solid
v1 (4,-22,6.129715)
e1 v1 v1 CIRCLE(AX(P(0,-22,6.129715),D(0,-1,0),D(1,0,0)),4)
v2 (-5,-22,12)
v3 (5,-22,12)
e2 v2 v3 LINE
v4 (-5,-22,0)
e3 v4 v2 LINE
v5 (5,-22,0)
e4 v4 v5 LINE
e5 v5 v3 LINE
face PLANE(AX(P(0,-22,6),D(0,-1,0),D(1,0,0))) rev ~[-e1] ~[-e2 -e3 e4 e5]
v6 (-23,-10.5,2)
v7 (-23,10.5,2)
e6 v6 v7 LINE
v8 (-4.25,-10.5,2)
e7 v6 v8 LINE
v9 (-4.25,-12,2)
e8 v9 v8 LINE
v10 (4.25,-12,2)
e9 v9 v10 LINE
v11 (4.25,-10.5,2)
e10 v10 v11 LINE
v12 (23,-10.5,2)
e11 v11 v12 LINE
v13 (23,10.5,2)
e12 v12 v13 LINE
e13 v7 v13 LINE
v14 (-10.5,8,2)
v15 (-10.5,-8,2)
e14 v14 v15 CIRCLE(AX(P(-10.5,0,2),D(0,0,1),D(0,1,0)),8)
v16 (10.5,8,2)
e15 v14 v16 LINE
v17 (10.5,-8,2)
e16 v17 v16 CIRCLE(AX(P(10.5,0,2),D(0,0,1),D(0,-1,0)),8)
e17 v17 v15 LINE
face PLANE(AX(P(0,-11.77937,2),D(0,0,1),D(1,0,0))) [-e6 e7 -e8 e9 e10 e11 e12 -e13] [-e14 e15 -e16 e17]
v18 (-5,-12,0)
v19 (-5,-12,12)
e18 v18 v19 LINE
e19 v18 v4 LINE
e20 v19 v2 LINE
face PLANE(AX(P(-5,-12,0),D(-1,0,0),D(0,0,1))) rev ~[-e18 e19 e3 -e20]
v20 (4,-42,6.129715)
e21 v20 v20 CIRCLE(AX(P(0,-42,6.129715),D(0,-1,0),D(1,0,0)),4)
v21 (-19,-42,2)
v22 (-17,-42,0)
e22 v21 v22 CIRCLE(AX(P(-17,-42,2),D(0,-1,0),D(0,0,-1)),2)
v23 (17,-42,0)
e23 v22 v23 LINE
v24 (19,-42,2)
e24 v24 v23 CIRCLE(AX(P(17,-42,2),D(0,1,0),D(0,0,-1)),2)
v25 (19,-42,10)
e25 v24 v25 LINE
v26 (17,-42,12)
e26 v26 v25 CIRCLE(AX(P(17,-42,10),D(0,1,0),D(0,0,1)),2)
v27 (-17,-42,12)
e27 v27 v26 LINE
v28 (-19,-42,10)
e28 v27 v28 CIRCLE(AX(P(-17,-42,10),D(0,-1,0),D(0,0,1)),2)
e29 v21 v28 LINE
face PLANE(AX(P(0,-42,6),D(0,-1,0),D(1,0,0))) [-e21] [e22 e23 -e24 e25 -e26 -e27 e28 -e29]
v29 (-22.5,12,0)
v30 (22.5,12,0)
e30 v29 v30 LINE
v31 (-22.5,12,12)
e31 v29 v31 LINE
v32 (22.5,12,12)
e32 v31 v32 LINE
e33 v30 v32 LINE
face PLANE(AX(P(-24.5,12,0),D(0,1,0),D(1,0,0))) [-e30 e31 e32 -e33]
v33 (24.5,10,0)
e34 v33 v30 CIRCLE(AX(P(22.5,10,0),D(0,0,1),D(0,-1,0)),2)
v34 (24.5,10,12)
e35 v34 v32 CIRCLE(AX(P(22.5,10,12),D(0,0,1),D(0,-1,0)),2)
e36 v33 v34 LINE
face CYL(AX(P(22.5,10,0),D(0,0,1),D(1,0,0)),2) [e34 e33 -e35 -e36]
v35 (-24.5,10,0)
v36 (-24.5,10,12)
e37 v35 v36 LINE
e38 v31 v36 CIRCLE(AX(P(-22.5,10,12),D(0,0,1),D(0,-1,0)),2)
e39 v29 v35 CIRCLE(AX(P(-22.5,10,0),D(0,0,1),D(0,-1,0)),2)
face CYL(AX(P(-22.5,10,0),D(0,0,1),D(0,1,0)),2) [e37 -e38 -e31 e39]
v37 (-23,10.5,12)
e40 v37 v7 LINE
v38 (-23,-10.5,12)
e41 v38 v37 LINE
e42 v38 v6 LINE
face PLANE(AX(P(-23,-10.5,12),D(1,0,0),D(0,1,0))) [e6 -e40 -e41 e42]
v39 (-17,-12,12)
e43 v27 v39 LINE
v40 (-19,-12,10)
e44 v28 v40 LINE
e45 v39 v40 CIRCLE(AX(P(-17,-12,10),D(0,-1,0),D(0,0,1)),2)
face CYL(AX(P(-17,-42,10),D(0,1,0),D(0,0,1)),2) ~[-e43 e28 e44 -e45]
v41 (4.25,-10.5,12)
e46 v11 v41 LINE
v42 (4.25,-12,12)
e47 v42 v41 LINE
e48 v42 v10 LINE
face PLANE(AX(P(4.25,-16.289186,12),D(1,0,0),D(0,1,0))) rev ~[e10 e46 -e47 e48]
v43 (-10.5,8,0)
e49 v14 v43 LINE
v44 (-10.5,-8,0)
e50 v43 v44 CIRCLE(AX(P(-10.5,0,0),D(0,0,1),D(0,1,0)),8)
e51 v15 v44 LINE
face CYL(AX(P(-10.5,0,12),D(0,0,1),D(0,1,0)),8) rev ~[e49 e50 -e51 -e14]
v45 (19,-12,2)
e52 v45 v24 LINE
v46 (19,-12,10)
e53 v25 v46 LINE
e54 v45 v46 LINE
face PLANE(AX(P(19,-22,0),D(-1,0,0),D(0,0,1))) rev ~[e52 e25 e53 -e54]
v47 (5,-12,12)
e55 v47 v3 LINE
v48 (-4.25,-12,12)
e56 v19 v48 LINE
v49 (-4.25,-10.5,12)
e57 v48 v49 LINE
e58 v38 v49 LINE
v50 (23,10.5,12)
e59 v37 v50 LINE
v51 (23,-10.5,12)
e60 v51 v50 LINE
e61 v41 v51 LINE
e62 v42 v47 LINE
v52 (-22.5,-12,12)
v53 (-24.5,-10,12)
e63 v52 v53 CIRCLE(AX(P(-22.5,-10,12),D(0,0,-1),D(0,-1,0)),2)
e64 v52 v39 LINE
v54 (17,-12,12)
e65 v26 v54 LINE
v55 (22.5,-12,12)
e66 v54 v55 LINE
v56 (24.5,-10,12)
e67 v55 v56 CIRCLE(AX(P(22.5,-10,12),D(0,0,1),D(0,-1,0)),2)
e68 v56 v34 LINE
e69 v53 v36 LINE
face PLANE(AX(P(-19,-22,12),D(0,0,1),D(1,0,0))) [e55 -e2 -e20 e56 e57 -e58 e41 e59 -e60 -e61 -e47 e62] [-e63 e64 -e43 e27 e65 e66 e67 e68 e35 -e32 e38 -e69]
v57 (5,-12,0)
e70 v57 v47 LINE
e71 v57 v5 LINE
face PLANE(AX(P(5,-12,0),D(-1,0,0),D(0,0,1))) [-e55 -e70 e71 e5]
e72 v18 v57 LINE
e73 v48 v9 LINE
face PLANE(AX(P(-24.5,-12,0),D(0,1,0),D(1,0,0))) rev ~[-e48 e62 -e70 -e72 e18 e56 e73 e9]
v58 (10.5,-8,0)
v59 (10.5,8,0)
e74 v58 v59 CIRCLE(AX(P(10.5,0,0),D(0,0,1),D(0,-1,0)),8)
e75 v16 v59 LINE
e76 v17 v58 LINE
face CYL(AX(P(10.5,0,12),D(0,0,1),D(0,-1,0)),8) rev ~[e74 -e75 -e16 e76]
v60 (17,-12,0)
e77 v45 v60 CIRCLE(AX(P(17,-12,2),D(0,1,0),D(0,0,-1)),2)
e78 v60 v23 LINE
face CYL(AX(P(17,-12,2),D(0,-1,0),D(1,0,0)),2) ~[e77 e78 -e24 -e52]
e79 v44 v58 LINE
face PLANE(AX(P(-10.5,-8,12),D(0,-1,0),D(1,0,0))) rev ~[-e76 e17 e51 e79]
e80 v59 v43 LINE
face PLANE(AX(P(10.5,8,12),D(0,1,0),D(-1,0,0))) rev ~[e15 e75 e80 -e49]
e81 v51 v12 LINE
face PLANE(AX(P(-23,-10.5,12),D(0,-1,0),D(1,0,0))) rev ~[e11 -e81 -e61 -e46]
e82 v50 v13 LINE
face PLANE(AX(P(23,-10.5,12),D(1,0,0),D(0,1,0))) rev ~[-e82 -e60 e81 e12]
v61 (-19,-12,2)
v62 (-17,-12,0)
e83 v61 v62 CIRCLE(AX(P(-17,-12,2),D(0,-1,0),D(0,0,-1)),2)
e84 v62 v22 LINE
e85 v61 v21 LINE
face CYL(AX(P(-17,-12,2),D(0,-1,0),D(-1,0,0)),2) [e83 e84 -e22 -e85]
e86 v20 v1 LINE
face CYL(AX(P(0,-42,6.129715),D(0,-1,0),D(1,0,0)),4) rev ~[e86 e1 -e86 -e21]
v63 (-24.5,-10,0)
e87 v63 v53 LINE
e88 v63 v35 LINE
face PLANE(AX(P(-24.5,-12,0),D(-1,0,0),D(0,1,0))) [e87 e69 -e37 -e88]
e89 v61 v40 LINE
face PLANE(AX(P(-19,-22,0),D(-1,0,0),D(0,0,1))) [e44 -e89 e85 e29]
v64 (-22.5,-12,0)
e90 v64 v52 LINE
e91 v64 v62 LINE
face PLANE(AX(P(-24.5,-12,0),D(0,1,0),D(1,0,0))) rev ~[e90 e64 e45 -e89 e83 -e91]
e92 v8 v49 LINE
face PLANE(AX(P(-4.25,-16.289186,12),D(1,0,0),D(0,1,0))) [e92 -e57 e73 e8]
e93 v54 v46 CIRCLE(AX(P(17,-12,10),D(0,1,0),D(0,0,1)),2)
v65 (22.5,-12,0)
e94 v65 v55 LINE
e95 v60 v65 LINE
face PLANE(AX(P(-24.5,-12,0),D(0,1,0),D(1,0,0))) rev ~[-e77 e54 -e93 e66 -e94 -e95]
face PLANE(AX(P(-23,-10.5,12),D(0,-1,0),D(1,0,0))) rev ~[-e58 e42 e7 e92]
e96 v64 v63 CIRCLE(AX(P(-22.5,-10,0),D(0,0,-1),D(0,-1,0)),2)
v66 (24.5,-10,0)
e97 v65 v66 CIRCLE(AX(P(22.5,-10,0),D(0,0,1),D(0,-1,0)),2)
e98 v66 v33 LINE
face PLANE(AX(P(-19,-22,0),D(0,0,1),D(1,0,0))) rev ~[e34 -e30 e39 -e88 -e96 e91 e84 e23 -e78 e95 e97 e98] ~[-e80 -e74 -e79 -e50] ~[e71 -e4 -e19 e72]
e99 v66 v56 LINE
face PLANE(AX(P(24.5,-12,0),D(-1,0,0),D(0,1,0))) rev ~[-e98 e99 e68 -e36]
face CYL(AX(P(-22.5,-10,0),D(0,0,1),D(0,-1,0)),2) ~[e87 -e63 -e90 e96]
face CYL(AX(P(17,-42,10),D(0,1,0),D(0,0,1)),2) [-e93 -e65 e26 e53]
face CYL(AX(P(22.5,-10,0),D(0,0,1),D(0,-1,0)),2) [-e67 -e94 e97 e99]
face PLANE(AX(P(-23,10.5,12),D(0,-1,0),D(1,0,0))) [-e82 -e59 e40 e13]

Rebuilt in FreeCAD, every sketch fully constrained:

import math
import FreeCAD as App
import Part
import Sketcher
Q = App.Units.Quantity


def edges_at(feature, points):
    """Names of the edges that pass closest to the given points."""
    edges = feature.Shape.Edges
    near = lambda p: min(range(len(edges)), key=lambda i: edges[i].distToShape(Part.Vertex(*p))[0])
    return sorted({f"Edge{near(p) + 1}" for p in points})


def add_polygon(sketch, points):
    """Adds a closed chain of lines whose ends are joined by coincident constraints."""
    first, n = sketch.GeometryCount, len(points)
    for a, b in zip(points, points[1:] + points[:1]):
        sketch.addGeometry(Part.LineSegment(App.Vector(*a, 0), App.Vector(*b, 0)), False)
    for i in range(n):
        sketch.addConstraint(Sketcher.Constraint("Coincident", first + i, 2, first + (i + 1) % n, 1))

doc = App.newDocument("Part")
body = doc.addObject("PartDesign::Body", "Body")

# Sketch on XY plane
sketch1 = body.newObject("Sketcher::SketchObject", "Sketch")
sketch1.AttachmentSupport = (doc.getObject("XY_Plane"), [""])
sketch1.MapMode = "FlatFace"
add_polygon(sketch1, [(-24, 12), (-24, -12), (24, -12), (24, 12)])  # lines 0-3
sketch1.addConstraint(Sketcher.Constraint("Vertical", 0))
sketch1.addConstraint(Sketcher.Constraint("Horizontal", 1))
sketch1.addConstraint(Sketcher.Constraint("Vertical", 2))
sketch1.addConstraint(Sketcher.Constraint("Horizontal", 3))
sketch1.addConstraint(Sketcher.Constraint("Symmetric", 0, 2, 2, 2, -1, 1))
sketch1.addConstraint(Sketcher.Constraint("DistanceX", 1, 1, 1, 2, Q("49 mm")))
sketch1.addConstraint(Sketcher.Constraint("DistanceY", 0, 2, 0, 1, Q("24 mm")))
pad1 = body.newObject("PartDesign::Pad", "Pad")
pad1.Profile = sketch1
pad1.Length = 12

# Sketch on XY plane
sketch2 = body.newObject("Sketcher::SketchObject", "Sketch001")
sketch2.AttachmentSupport = (doc.getObject("XY_Plane"), [""])
sketch2.MapMode = "FlatFace"
sketch2.AttachmentOffset = App.Placement(App.Vector(0, 0, 12), App.Rotation())
sketch2.addGeometry(Part.ArcOfCircle(Part.Circle(App.Vector(-10, 0, 0), App.Vector(0, 0, 1), 8), math.radians(90), math.radians(270)), False)
sketch2.addGeometry(Part.LineSegment(App.Vector(-10, -8, 0), App.Vector(10, -8, 0)), False)
sketch2.addGeometry(Part.ArcOfCircle(Part.Circle(App.Vector(10, 0, 0), App.Vector(0, 0, 1), 8), math.radians(-90), math.radians(90)), False)
sketch2.addGeometry(Part.LineSegment(App.Vector(10, 8, 0), App.Vector(-10, 8, 0)), False)
sketch2.addConstraint(Sketcher.Constraint("Tangent", 0, 2, 1, 1))
sketch2.addConstraint(Sketcher.Constraint("Tangent", 1, 2, 2, 1))
sketch2.addConstraint(Sketcher.Constraint("Tangent", 2, 2, 3, 1))
sketch2.addConstraint(Sketcher.Constraint("Tangent", 3, 2, 0, 1))
sketch2.addConstraint(Sketcher.Constraint("Horizontal", 1))
sketch2.addConstraint(Sketcher.Constraint("Horizontal", 3))
sketch2.addConstraint(Sketcher.Constraint("Symmetric", 0, 3, 2, 3, -1, 1))
sketch2.addConstraint(Sketcher.Constraint("Radius", 0, Q("8 mm")))
sketch2.addConstraint(Sketcher.Constraint("DistanceX", 1, 1, 1, 2, Q("21 mm")))
pocket1 = body.newObject("PartDesign::Pocket", "Pocket")
pocket1.Profile = sketch2
pocket1.Type = "ThroughAll"

# Sketch on XY plane
sketch3 = body.newObject("Sketcher::SketchObject", "Sketch002")
sketch3.AttachmentSupport = (doc.getObject("XY_Plane"), [""])
sketch3.MapMode = "FlatFace"
sketch3.AttachmentOffset = App.Placement(App.Vector(0, 0, 12), App.Rotation())
add_polygon(sketch3, [(-23, 10), (-23, -10), (23, -10), (23, 10)])  # lines 0-3
sketch3.addConstraint(Sketcher.Constraint("Vertical", 0))
sketch3.addConstraint(Sketcher.Constraint("Horizontal", 1))
sketch3.addConstraint(Sketcher.Constraint("Vertical", 2))
sketch3.addConstraint(Sketcher.Constraint("Horizontal", 3))
sketch3.addConstraint(Sketcher.Constraint("Symmetric", 0, 2, 2, 2, -1, 1))
sketch3.addConstraint(Sketcher.Constraint("DistanceX", 1, 1, 1, 2, Q("46 mm")))
sketch3.addConstraint(Sketcher.Constraint("DistanceY", 0, 2, 0, 1, Q("21 mm")))
pocket2 = body.newObject("PartDesign::Pocket", "Pocket001")
pocket2.Profile = sketch3
pocket2.Length = 10

# Sketch on XY plane
sketch4 = body.newObject("Sketcher::SketchObject", "Sketch003")
sketch4.AttachmentSupport = (doc.getObject("XY_Plane"), [""])
sketch4.MapMode = "FlatFace"
sketch4.AttachmentOffset = App.Placement(App.Vector(0, 0, 12), App.Rotation())
add_polygon(sketch4, [(-4, -7), (-4, -16), (4, -16), (4, -7)])  # lines 0-3
sketch4.addConstraint(Sketcher.Constraint("Vertical", 0))
sketch4.addConstraint(Sketcher.Constraint("Horizontal", 1))
sketch4.addConstraint(Sketcher.Constraint("Vertical", 2))
sketch4.addConstraint(Sketcher.Constraint("Horizontal", 3))
sketch4.addConstraint(Sketcher.Constraint("DistanceX", 1, 1, 1, 2, Q("8.5 mm")))
sketch4.addConstraint(Sketcher.Constraint("DistanceX", 0, 2, -1, 1, Q("4.25 mm")))
sketch4.addConstraint(Sketcher.Constraint("DistanceY", 0, 2, 0, 1, Q("9.019632 mm")))
sketch4.addConstraint(Sketcher.Constraint("DistanceY", 0, 2, -1, 1, Q("16.289186 mm")))
pocket3 = body.newObject("PartDesign::Pocket", "Pocket002")
pocket3.Profile = sketch4
pocket3.Length = 10

# Sketch on XZ plane
sketch5 = body.newObject("Sketcher::SketchObject", "Sketch004")
sketch5.AttachmentSupport = (doc.getObject("XZ_Plane"), [""])
sketch5.MapMode = "FlatFace"
sketch5.AttachmentOffset = App.Placement(App.Vector(0, 0, 12), App.Rotation())
add_polygon(sketch5, [(-19, 12), (-19, 0), (-5, 0), (-5, 12)])  # lines 0-3
add_polygon(sketch5, [(5, 12), (5, 0), (19, 0), (19, 12)])  # lines 4-7
sketch5.addConstraint(Sketcher.Constraint("Vertical", 0))
sketch5.addConstraint(Sketcher.Constraint("Horizontal", 1))
sketch5.addConstraint(Sketcher.Constraint("Vertical", 2))
sketch5.addConstraint(Sketcher.Constraint("Horizontal", 3))
sketch5.addConstraint(Sketcher.Constraint("Vertical", 4))
sketch5.addConstraint(Sketcher.Constraint("Horizontal", 5))
sketch5.addConstraint(Sketcher.Constraint("Vertical", 6))
sketch5.addConstraint(Sketcher.Constraint("Horizontal", 7))
sketch5.addConstraint(Sketcher.Constraint("Symmetric", 1, 2, 4, 2, -1, 1))
sketch5.addConstraint(Sketcher.Constraint("Symmetric", 0, 2, 5, 2, -2))
sketch5.addConstraint(Sketcher.Constraint("Horizontal", 3, 2, 6, 2))
sketch5.addConstraint(Sketcher.Constraint("DistanceX", 1, 1, 1, 2, Q("14 mm")))
sketch5.addConstraint(Sketcher.Constraint("DistanceY", 0, 2, 0, 1, Q("12 mm")))
sketch5.addConstraint(Sketcher.Constraint("DistanceX", 0, 2, -1, 1, Q("19 mm")))
pad2 = body.newObject("PartDesign::Pad", "Pad001")
pad2.Profile = sketch5
pad2.Length = 10

# Sketch on XZ plane
sketch6 = body.newObject("Sketcher::SketchObject", "Sketch005")
sketch6.AttachmentSupport = (doc.getObject("XZ_Plane"), [""])
sketch6.MapMode = "FlatFace"
sketch6.AttachmentOffset = App.Placement(App.Vector(0, 0, 22), App.Rotation())
add_polygon(sketch6, [(-19, 12), (-19, 0), (19, 0), (19, 12)])  # lines 0-3
sketch6.addConstraint(Sketcher.Constraint("Vertical", 0))
sketch6.addConstraint(Sketcher.Constraint("Horizontal", 1))
sketch6.addConstraint(Sketcher.Constraint("Vertical", 2))
sketch6.addConstraint(Sketcher.Constraint("Horizontal", 3))
sketch6.addConstraint(Sketcher.Constraint("Symmetric", 0, 2, 1, 2, -1, 1))
sketch6.addConstraint(Sketcher.Constraint("DistanceX", 1, 1, 1, 2, Q("38 mm")))
sketch6.addConstraint(Sketcher.Constraint("DistanceY", 0, 2, 0, 1, Q("12 mm")))
pad3 = body.newObject("PartDesign::Pad", "Pad002")
pad3.Profile = sketch6
pad3.Length = 20

# Sketch on XZ plane
sketch7 = body.newObject("Sketcher::SketchObject", "Sketch006")
sketch7.AttachmentSupport = (doc.getObject("XZ_Plane"), [""])
sketch7.MapMode = "FlatFace"
sketch7.AttachmentOffset = App.Placement(App.Vector(0, 0, 42), App.Rotation())
sketch7.addGeometry(Part.Circle(App.Vector(0, 6.1, 0), App.Vector(0, 0, 1), 4), False)
sketch7.addConstraint(Sketcher.Constraint("PointOnObject", 0, 3, -2))
sketch7.addConstraint(Sketcher.Constraint("Diameter", 0, Q("8 mm")))
sketch7.addConstraint(Sketcher.Constraint("DistanceY", -1, 1, 0, 3, Q("6.129715 mm")))
pocket4 = body.newObject("PartDesign::Pocket", "Pocket003")
pocket4.Profile = sketch7
pocket4.Length = 21
doc.recompute()

fillet = body.newObject("PartDesign::Fillet", "Fillet")
fillet.Base = (pocket4, edges_at(pocket4, [
    (24.5, -12, 6),
    (24.5, 12, 6),
    (-24.5, 12, 6),
    (-24.5, -12, 6),
]))
fillet.Radius = 2
doc.recompute()

fillet2 = body.newObject("PartDesign::Fillet", "Fillet001")
fillet2.Base = (fillet, edges_at(fillet, [
    (19, -27, 0),
    (-19, -27, 0),
    (19, -27, 12),
    (-19, -27, 12),
]))
fillet2.Radius = 2

doc.recompute()
